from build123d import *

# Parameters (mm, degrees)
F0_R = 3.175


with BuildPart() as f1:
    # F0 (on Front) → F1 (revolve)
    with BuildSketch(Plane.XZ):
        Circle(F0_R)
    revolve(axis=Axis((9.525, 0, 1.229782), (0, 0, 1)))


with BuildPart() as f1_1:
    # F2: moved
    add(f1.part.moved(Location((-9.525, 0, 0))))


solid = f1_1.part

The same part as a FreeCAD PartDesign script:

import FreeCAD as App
import Part
import Sketcher

V = App.Vector
Q = App.Units.Quantity

doc = App.newDocument("Part")
body = doc.addObject("PartDesign::Body", "Body")

# Sketch on XZ plane
sketch1 = body.newObject("Sketcher::SketchObject", "Sketch")
sketch1.AttachmentSupport = (doc.getObject("XZ_Plane"), [""])
sketch1.MapMode = "FlatFace"
sketch1.addGeometry(Part.Circle(V(0, 0, 0), V(0, 0, 1), 3.175), False)
sketch1.addGeometry(Part.LineSegment(V(9.525, 0, 0), V(9.525, 10, 0)), True)  # axis
sketch1.addConstraint(Sketcher.Constraint("Vertical", 1))
sketch1.addConstraint(Sketcher.Constraint("Coincident", 0, 3, -1, 1))
sketch1.addConstraint(Sketcher.Constraint("PointOnObject", 1, 1, -1))
sketch1.addConstraint(Sketcher.Constraint("Diameter", 0, Q("0.25 in")))
sketch1.addConstraint(Sketcher.Constraint("DistanceX", -1, 1, 1, 1, Q("0.375 in")))
sketch1.addConstraint(Sketcher.Constraint("DistanceY", 1, 1, 1, 2, 10.0))
revolution = body.newObject("PartDesign::Revolution", "Revolution")
revolution.Profile = sketch1
revolution.ReferenceAxis = (sketch1, ["Axis0"])
revolution.Angle = 360
body2 = doc.addObject("PartDesign::Body", "Body001")
doc.recompute()

body.Placement = App.Placement(V(-9.525, 0, 0), App.Rotation(V(0, 0, 1), 0))
boolean = body2.newObject("PartDesign::Boolean", "Boolean")
boolean.Type = "Fuse"
boolean.addObjects([body])

doc.recompute()
